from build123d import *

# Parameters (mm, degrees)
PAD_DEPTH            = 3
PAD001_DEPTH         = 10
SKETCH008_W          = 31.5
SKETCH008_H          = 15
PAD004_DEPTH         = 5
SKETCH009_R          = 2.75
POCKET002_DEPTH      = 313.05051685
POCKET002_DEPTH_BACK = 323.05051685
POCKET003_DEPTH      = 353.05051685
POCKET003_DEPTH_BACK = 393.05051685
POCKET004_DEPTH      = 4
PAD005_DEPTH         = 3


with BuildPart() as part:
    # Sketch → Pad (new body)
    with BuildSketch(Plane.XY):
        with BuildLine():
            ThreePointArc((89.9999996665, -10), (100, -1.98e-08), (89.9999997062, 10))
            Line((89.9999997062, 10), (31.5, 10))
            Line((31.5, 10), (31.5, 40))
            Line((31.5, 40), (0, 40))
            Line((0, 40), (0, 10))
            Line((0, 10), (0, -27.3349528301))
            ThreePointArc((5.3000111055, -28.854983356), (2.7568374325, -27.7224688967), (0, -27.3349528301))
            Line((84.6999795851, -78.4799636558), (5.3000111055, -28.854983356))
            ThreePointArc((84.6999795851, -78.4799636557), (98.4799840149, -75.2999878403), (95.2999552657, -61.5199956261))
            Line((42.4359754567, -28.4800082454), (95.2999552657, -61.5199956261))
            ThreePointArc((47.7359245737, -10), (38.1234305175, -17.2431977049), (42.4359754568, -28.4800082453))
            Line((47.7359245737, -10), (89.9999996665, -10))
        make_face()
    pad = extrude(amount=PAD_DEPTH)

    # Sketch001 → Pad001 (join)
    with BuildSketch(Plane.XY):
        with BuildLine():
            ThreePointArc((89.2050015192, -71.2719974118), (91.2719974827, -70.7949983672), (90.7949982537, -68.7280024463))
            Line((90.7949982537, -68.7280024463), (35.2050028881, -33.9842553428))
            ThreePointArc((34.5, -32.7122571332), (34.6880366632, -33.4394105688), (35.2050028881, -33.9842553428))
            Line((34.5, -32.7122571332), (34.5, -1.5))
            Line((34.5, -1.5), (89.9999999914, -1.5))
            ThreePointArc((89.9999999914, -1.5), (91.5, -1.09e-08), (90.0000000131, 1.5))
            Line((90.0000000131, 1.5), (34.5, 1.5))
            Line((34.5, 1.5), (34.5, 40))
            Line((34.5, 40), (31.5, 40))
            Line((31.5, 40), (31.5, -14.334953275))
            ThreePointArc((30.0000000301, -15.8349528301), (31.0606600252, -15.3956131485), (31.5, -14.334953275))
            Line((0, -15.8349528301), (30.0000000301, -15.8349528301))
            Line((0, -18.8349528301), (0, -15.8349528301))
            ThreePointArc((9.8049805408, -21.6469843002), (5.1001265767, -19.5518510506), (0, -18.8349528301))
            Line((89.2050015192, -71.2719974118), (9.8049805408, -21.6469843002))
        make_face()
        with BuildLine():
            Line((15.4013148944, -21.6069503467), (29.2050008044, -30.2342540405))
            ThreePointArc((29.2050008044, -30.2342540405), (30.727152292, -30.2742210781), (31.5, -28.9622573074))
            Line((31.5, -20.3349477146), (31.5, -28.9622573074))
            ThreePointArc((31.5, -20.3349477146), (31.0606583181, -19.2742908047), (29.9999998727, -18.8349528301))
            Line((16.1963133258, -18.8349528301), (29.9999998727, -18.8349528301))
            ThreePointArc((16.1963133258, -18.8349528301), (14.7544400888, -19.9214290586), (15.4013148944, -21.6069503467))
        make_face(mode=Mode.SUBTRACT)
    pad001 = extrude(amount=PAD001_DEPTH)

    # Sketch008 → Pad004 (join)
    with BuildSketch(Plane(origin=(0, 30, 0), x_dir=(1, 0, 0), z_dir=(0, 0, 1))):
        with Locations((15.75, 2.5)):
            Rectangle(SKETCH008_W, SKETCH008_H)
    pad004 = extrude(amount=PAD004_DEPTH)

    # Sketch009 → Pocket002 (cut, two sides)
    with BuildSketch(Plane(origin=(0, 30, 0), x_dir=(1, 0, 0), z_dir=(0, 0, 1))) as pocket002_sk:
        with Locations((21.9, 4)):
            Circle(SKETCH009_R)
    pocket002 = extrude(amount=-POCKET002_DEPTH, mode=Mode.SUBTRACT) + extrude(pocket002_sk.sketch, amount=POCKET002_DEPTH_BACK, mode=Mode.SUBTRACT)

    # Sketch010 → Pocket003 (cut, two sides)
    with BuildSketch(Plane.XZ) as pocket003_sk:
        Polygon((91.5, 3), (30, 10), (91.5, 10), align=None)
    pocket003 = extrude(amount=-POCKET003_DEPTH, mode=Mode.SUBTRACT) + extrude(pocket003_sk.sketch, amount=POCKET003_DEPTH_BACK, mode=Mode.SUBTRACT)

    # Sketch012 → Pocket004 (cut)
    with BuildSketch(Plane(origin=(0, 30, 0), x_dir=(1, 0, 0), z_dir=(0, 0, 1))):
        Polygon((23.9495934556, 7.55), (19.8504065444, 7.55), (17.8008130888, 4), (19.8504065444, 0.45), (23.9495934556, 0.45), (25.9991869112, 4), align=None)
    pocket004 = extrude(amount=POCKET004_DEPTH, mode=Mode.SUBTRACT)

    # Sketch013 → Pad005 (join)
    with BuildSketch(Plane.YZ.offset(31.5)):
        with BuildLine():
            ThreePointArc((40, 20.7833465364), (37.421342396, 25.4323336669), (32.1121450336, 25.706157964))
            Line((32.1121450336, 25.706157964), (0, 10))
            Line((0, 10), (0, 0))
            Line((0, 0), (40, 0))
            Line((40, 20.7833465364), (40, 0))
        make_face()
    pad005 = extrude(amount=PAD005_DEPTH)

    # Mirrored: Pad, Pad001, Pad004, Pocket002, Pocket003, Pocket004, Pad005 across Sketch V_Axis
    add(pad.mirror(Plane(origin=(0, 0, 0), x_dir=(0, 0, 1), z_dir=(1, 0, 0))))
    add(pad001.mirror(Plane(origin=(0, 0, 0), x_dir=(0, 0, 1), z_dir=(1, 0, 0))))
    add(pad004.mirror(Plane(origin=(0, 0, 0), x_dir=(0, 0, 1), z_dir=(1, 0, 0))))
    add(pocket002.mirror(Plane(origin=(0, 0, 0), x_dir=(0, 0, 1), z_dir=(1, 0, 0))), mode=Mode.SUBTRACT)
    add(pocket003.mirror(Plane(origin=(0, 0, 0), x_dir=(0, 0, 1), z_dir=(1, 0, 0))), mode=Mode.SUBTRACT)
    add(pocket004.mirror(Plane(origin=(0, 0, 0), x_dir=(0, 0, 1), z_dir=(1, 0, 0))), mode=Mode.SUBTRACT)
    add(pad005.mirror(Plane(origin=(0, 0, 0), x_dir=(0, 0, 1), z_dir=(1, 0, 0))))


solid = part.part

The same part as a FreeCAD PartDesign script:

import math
import FreeCAD as App
import Part
import Sketcher
Q = App.Units.Quantity


def add_polygon(sketch, points):
    """Adds a closed chain of lines whose ends are joined by coincident constraints."""
    first, n = sketch.GeometryCount, len(points)
    for a, b in zip(points, points[1:] + points[:1]):
        sketch.addGeometry(Part.LineSegment(App.Vector(*a, 0), App.Vector(*b, 0)), False)
    for i in range(n):
        sketch.addConstraint(Sketcher.Constraint("Coincident", first + i, 2, first + (i + 1) % n, 1))

doc = App.newDocument("Part")
body = doc.addObject("PartDesign::Body", "Body")

# Sketch on XY plane
sketch1 = body.newObject("Sketcher::SketchObject", "Sketch")
sketch1.AttachmentSupport = (doc.getObject("XY_Plane"), [""])
sketch1.MapMode = "FlatFace"
sketch1.addGeometry(Part.ArcOfCircle(Part.Circle(App.Vector(90, 0, 0), App.Vector(0, 0, 1), 10), math.radians(-90.000002), math.radians(90.000002)), False)
sketch1.addGeometry(Part.LineSegment(App.Vector(90, 10, 0), App.Vector(31.5, 10, 0)), False)
sketch1.addGeometry(Part.LineSegment(App.Vector(31.5, 10, 0), App.Vector(31.5, 40, 0)), False)
sketch1.addGeometry(Part.LineSegment(App.Vector(31.5, 40, 0), App.Vector(0, 40, 0)), False)
sketch1.addGeometry(Part.LineSegment(App.Vector(0, 40, 0), App.Vector(0, -27.334953, 0)), False)
sketch1.addGeometry(Part.ArcOfCircle(Part.Circle(App.Vector(0, -37.334953, 0), App.Vector(0, 0, 1), 10), math.radians(57.99447), math.radians(90)), False)
sketch1.addGeometry(Part.LineSegment(App.Vector(5.300011, -28.854983, 0), App.Vector(84.69998, -78.479964, 0)), False)
sketch1.addGeometry(Part.ArcOfCircle(Part.Circle(App.Vector(90, -70, 0), App.Vector(0, 0, 1), 10), math.radians(-122.005593), math.radians(57.994847)), False)
sketch1.addGeometry(Part.LineSegment(App.Vector(95.299955, -61.519996, 0), App.Vector(42.435975, -28.480008, 0)), False)
sketch1.addGeometry(Part.ArcOfCircle(Part.Circle(App.Vector(47.735925, -20, 0), App.Vector(0, 0, 1), 10), math.radians(90), math.radians(237.994889)), False)
sketch1.addGeometry(Part.LineSegment(App.Vector(47.735925, -10, 0), App.Vector(90, -10, 0)), False)
sketch1.addConstraint(Sketcher.Constraint("Tangent", 0, 2, 1, 1))
sketch1.addConstraint(Sketcher.Constraint("Coincident", 1, 2, 2, 1))
sketch1.addConstraint(Sketcher.Constraint("Coincident", 2, 2, 3, 1))
sketch1.addConstraint(Sketcher.Constraint("Coincident", 3, 2, 4, 1))
sketch1.addConstraint(Sketcher.Constraint("Coincident", 4, 2, 5, 2))
sketch1.addConstraint(Sketcher.Constraint("Coincident", 5, 1, 6, 1))
sketch1.addConstraint(Sketcher.Constraint("Coincident", 6, 2, 7, 1))
sketch1.addConstraint(Sketcher.Constraint("Coincident", 7, 2, 8, 1))
sketch1.addConstraint(Sketcher.Constraint("Coincident", 8, 2, 9, 2))
sketch1.addConstraint(Sketcher.Constraint("Tangent", 9, 1, 10, 1))
sketch1.addConstraint(Sketcher.Constraint("Tangent", 10, 2, 0, 1))
sketch1.addConstraint(Sketcher.Constraint("Horizontal", 1))
sketch1.addConstraint(Sketcher.Constraint("Vertical", 2))
sketch1.addConstraint(Sketcher.Constraint("Horizontal", 3))
sketch1.addConstraint(Sketcher.Constraint("Vertical", 4))
sketch1.addConstraint(Sketcher.Constraint("Horizontal", 10))
sketch1.addConstraint(Sketcher.Constraint("Equal", 0, 5))
sketch1.addConstraint(Sketcher.Constraint("Equal", 5, 7))
sketch1.addConstraint(Sketcher.Constraint("Equal", 7, 9))
sketch1.addConstraint(Sketcher.Constraint("PointOnObject", 0, 3, -1))
sketch1.addConstraint(Sketcher.Constraint("PointOnObject", 5, 3, -2))
sketch1.addConstraint(Sketcher.Constraint("PointOnObject", 3, 2, -2))
sketch1.addConstraint(Sketcher.Constraint("Parallel", 6, 8))
sketch1.addConstraint(Sketcher.Constraint("Vertical", 0, 3, 7, 3))
sketch1.addConstraint(Sketcher.Constraint("Radius", 0, Q("10 mm")))
sketch1.addConstraint(Sketcher.Constraint("DistanceY", 2, 1, 2, 2, Q("30 mm")))
sketch1.addConstraint(Sketcher.Constraint("DistanceX", 1, 2, 1, 1, Q("58.5 mm")))
sketch1.addConstraint(Sketcher.Constraint("DistanceX", 3, 2, 3, 1, Q("31.5 mm")))
sketch1.addConstraint(Sketcher.Constraint("DistanceY", 7, 3, -1, 1, Q("70 mm")))
sketch1.addConstraint(Sketcher.Constraint("DistanceX", 10, 1, 10, 2, Q("42.264075 mm")))
sketch1.addConstraint(Sketcher.Constraint("DistanceX", -1, 1, 5, 1, Q("5.300011 mm")))
sketch1.addConstraint(Sketcher.Constraint("DistanceX", -1, 1, 6, 2, Q("84.69998 mm")))
sketch1.addConstraint(Sketcher.Constraint("DistanceY", 8, 2, -1, 1, Q("28.480008 mm")))
sketch1.addConstraint(Sketcher.Constraint("DistanceY", 6, 2, 7, 2, Q("16.959968 mm")))
pad1 = body.newObject("PartDesign::Pad", "Pad")
pad1.Profile = sketch1
pad1.Length = 3

# Sketch on XY plane
sketch2 = body.newObject("Sketcher::SketchObject", "Sketch001")
sketch2.AttachmentSupport = (doc.getObject("XY_Plane"), [""])
sketch2.MapMode = "FlatFace"
sketch2.addGeometry(Part.ArcOfCircle(Part.Circle(App.Vector(90, -70, 0), App.Vector(0, 0, 1), 1.5), math.radians(-122.005386), math.radians(57.994624)), False)
sketch2.addGeometry(Part.LineSegment(App.Vector(90.794998, -68.728002, 0), App.Vector(35.205003, -33.984255, 0)), False)
sketch2.addGeometry(Part.ArcOfCircle(Part.Circle(App.Vector(36, -32.712257, 0), App.Vector(0, 0, 1), 1.5), math.radians(-179.999998), math.radians(-122.005325)), False)
sketch2.addGeometry(Part.LineSegment(App.Vector(34.5, -32.712257, 0), App.Vector(34.5, -1.5, 0)), False)
sketch2.addGeometry(Part.LineSegment(App.Vector(34.5, -1.5, 0), App.Vector(90, -1.5, 0)), False)
sketch2.addGeometry(Part.ArcOfCircle(Part.Circle(App.Vector(90, 0, 0), App.Vector(0, 0, 1), 1.5), math.radians(-90), math.radians(90)), False)
sketch2.addGeometry(Part.LineSegment(App.Vector(90, 1.5, 0), App.Vector(34.5, 1.5, 0)), False)
sketch2.addGeometry(Part.LineSegment(App.Vector(34.5, 1.5, 0), App.Vector(34.5, 40, 0)), False)
sketch2.addGeometry(Part.LineSegment(App.Vector(34.5, 40, 0), App.Vector(31.5, 40, 0)), False)
sketch2.addGeometry(Part.LineSegment(App.Vector(31.5, 40, 0), App.Vector(31.5, -14.334953, 0)), False)
sketch2.addGeometry(Part.ArcOfCircle(Part.Circle(App.Vector(30, -14.334953, 0), App.Vector(0, 0, 1), 1.5), math.radians(-89.999999), math.radians(-0.000017)), False)
sketch2.addGeometry(Part.LineSegment(App.Vector(30, -15.834953, 0), App.Vector(0, -15.834953, 0)), False)
sketch2.addGeometry(Part.LineSegment(App.Vector(0, -15.834953, 0), App.Vector(0, -18.834953, 0)), False)
sketch2.addGeometry(Part.ArcOfCircle(Part.Circle(App.Vector(0, -37.334953, 0), App.Vector(0, 0, 1), 18.5), math.radians(57.994616), math.radians(90)), False)
sketch2.addGeometry(Part.LineSegment(App.Vector(9.804981, -21.646984, 0), App.Vector(89.205002, -71.271997, 0)), False)
sketch2.addGeometry(Part.LineSegment(App.Vector(29.205001, -30.234254, 0), App.Vector(15.401315, -21.60695, 0)), False)
sketch2.addGeometry(Part.ArcOfCircle(Part.Circle(App.Vector(16.196313, -20.334953, 0), App.Vector(0, 0, 1), 1.5), math.radians(89.999995), math.radians(237.994621)), False)
sketch2.addGeometry(Part.LineSegment(App.Vector(16.196313, -18.834953, 0), App.Vector(30, -18.834953, 0)), False)
sketch2.addGeometry(Part.ArcOfCircle(Part.Circle(App.Vector(30, -20.334953, 0), App.Vector(0, 0, 1), 1.5), math.radians(0.000195), math.radians(90.000005)), False)
sketch2.addGeometry(Part.LineSegment(App.Vector(31.5, -20.334948, 0), App.Vector(31.5, -28.962257, 0)), False)
sketch2.addGeometry(Part.ArcOfCircle(Part.Circle(App.Vector(30, -28.962257, 0), App.Vector(0, 0, 1), 1.5), math.radians(-122.005419), math.radians(-0.000009)), False)
sketch2.addConstraint(Sketcher.Constraint("Coincident", 0, 2, 1, 1))
sketch2.addConstraint(Sketcher.Constraint("Coincident", 1, 2, 2, 2))
sketch2.addConstraint(Sketcher.Constraint("Coincident", 2, 1, 3, 1))
sketch2.addConstraint(Sketcher.Constraint("Coincident", 3, 2, 4, 1))
sketch2.addConstraint(Sketcher.Constraint("Coincident", 4, 2, 5, 1))
sketch2.addConstraint(Sketcher.Constraint("Coincident", 5, 2, 6, 1))
sketch2.addConstraint(Sketcher.Constraint("Coincident", 6, 2, 7, 1))
sketch2.addConstraint(Sketcher.Constraint("Coincident", 7, 2, 8, 1))
sketch2.addConstraint(Sketcher.Constraint("Coincident", 8, 2, 9, 1))
sketch2.addConstraint(Sketcher.Constraint("Coincident", 9, 2, 10, 2))
sketch2.addConstraint(Sketcher.Constraint("Coincident", 10, 1, 11, 1))
sketch2.addConstraint(Sketcher.Constraint("Coincident", 11, 2, 12, 1))
sketch2.addConstraint(Sketcher.Constraint("Coincident", 12, 2, 13, 2))
sketch2.addConstraint(Sketcher.Constraint("Coincident", 13, 1, 14, 1))
sketch2.addConstraint(Sketcher.Constraint("Coincident", 14, 2, 0, 1))
sketch2.addConstraint(Sketcher.Constraint("Coincident", 15, 2, 16, 2))
sketch2.addConstraint(Sketcher.Constraint("Coincident", 16, 1, 17, 1))
sketch2.addConstraint(Sketcher.Constraint("Coincident", 17, 2, 18, 2))
sketch2.addConstraint(Sketcher.Constraint("Coincident", 18, 1, 19, 1))
sketch2.addConstraint(Sketcher.Constraint("Coincident", 19, 2, 20, 2))
sketch2.addConstraint(Sketcher.Constraint("Coincident", 20, 1, 15, 1))
sketch2.addConstraint(Sketcher.Constraint("Vertical", 3))
sketch2.addConstraint(Sketcher.Constraint("Horizontal", 4))
sketch2.addConstraint(Sketcher.Constraint("Horizontal", 6))
sketch2.addConstraint(Sketcher.Constraint("Vertical", 7))
sketch2.addConstraint(Sketcher.Constraint("Horizontal", 8))
sketch2.addConstraint(Sketcher.Constraint("Vertical", 9))
sketch2.addConstraint(Sketcher.Constraint("Horizontal", 11))
sketch2.addConstraint(Sketcher.Constraint("Vertical", 12))
sketch2.addConstraint(Sketcher.Constraint("Horizontal", 17))
sketch2.addConstraint(Sketcher.Constraint("Vertical", 19))
sketch2.addConstraint(Sketcher.Constraint("PointOnObject", 5, 3, -1))
sketch2.addConstraint(Sketcher.Constraint("PointOnObject", 13, 3, -2))
sketch2.addConstraint(Sketcher.Constraint("PointOnObject", 11, 2, -2))
sketch2.addConstraint(Sketcher.Constraint("Radius", 0, Q("1.5 mm")))
sketch2.addConstraint(Sketcher.Constraint("Radius", 2, Q("1.5 mm")))
sketch2.addConstraint(Sketcher.Constraint("Radius", 5, Q("1.5 mm")))
sketch2.addConstraint(Sketcher.Constraint("Radius", 10, Q("1.5 mm")))
sketch2.addConstraint(Sketcher.Constraint("Radius", 13, Q("18.5 mm")))
sketch2.addConstraint(Sketcher.Constraint("Radius", 16, Q("1.5 mm")))
sketch2.addConstraint(Sketcher.Constraint("Radius", 18, Q("1.5 mm")))
sketch2.addConstraint(Sketcher.Constraint("Radius", 20, Q("1.5 mm")))
sketch2.addConstraint(Sketcher.Constraint("DistanceX", 8, 2, 8, 1, Q("3 mm")))
sketch2.addConstraint(Sketcher.Constraint("DistanceX", 11, 2, 11, 1, Q("30 mm")))
sketch2.addConstraint(Sketcher.Constraint("DistanceY", 12, 2, 12, 1, Q("3 mm")))
sketch2.addConstraint(Sketcher.Constraint("DistanceX", 4, 1, 4, 2, Q("55.5 mm")))
sketch2.addConstraint(Sketcher.Constraint("DistanceX", 6, 2, 6, 1, Q("55.5 mm")))
sketch2.addConstraint(Sketcher.Constraint("DistanceY", 7, 1, 7, 2, Q("38.5 mm")))
sketch2.addConstraint(Sketcher.Constraint("DistanceX", -1, 1, 0, 3, Q("90 mm")))
sketch2.addConstraint(Sketcher.Constraint("DistanceY", 0, 3, -1, 1, Q("70 mm")))
sketch2.addConstraint(Sketcher.Constraint("DistanceX", -1, 1, 2, 3, Q("36 mm")))
sketch2.addConstraint(Sketcher.Constraint("DistanceX", -1, 1, 5, 3, Q("90 mm")))
sketch2.addConstraint(Sketcher.Constraint("DistanceX", -1, 1, 10, 3, Q("30 mm")))
sketch2.addConstraint(Sketcher.Constraint("DistanceX", -1, 1, 18, 3, Q("30 mm")))
sketch2.addConstraint(Sketcher.Constraint("DistanceX", -1, 1, 17, 2, Q("30 mm")))
sketch2.addConstraint(Sketcher.Constraint("DistanceY", 16, 3, 10, 3, Q("6 mm")))
sketch2.addConstraint(Sketcher.Constraint("DistanceY", 18, 3, 9, 2, Q("6 mm")))
sketch2.addConstraint(Sketcher.Constraint("DistanceX", 1, 2, 14, 2, Q("53.999999 mm")))
sketch2.addConstraint(Sketcher.Constraint("DistanceY", 2, 3, 20, 3, Q("3.75 mm")))
sketch2.addConstraint(Sketcher.Constraint("DistanceY", 2, 1, 20, 3, Q("3.75 mm")))
sketch2.addConstraint(Sketcher.Constraint("DistanceY", 2, 1, 19, 2, Q("3.75 mm")))
sketch2.addConstraint(Sketcher.Constraint("DistanceY", 1, 2, 20, 1, Q("3.750001 mm")))
sketch2.addConstraint(Sketcher.Constraint("DistanceX", -1, 1, 0, 2, Q("90.794998 mm")))
sketch2.addConstraint(Sketcher.Constraint("DistanceX", -1, 1, 14, 2, Q("89.205002 mm")))
sketch2.addConstraint(Sketcher.Constraint("DistanceX", 15, 2, 16, 3, Q("0.794998 mm")))
sketch2.addConstraint(Sketcher.Constraint("DistanceX", 15, 2, 16, 1, Q("0.794998 mm")))
sketch2.addConstraint(Sketcher.Constraint("DistanceY", 19, 2, 19, 1, Q("8.62731 mm")))
sketch2.addConstraint(Sketcher.Constraint("Distance", 1, Q("65.554371 mm")))
sketch2.addConstraint(Sketcher.Constraint("DistanceX", 17, 1, 17, 2, Q("13.803687 mm")))
sketch2.addConstraint(Sketcher.Constraint("DistanceY", 9, 2, 9, 1, Q("54.334953 mm")))
sketch2.addConstraint(Sketcher.Constraint("DistanceX", -1, 1, 13, 1, Q("9.804981 mm")))
pad2 = body.newObject("PartDesign::Pad", "Pad001")
pad2.Profile = sketch2
pad2.Length = 10

# Sketch on XY plane
sketch3 = body.newObject("Sketcher::SketchObject", "Sketch002")
sketch3.AttachmentSupport = (doc.getObject("XY_Plane"), [""])
sketch3.MapMode = "FlatFace"
add_polygon(sketch3, [(0, 40), (0, 25), (31.5, 25), (31.5, 40)])  # lines 0-3
sketch3.addConstraint(Sketcher.Constraint("Vertical", 0))
sketch3.addConstraint(Sketcher.Constraint("Horizontal", 1))
sketch3.addConstraint(Sketcher.Constraint("Vertical", 2))
sketch3.addConstraint(Sketcher.Constraint("Horizontal", 3))
sketch3.addConstraint(Sketcher.Constraint("PointOnObject", 0, 2, -2))
sketch3.addConstraint(Sketcher.Constraint("DistanceY", 0, 2, 0, 1, Q("15 mm")))
sketch3.addConstraint(Sketcher.Constraint("DistanceX", 1, 1, 1, 2, Q("31.5 mm")))
sketch3.addConstraint(Sketcher.Constraint("DistanceY", -1, 1, 0, 2, Q("25 mm")))
pad3 = body.newObject("PartDesign::Pad", "Pad002")
pad3.Profile = sketch3
pad3.Length = 5

# Sketch on XY plane
sketch4 = body.newObject("Sketcher::SketchObject", "Sketch003")
sketch4.AttachmentSupport = (doc.getObject("XY_Plane"), [""])
sketch4.MapMode = "FlatFace"
sketch4.addGeometry(Part.Circle(App.Vector(21.9, 34, 0), App.Vector(0, 0, 1), 2.75), False)
sketch4.addConstraint(Sketcher.Constraint("Diameter", 0, Q("5.5 mm")))
sketch4.addConstraint(Sketcher.Constraint("DistanceY", -1, 1, 0, 3, Q("34 mm")))
sketch4.addConstraint(Sketcher.Constraint("DistanceX", -1, 1, 0, 3, Q("21.9 mm")))
pocket1 = body.newObject("PartDesign::Pocket", "Pocket")
pocket1.Profile = sketch4
pocket1.Type = "ThroughAll"
pocket1.Midplane = True

# Sketch on XZ plane
sketch5 = body.newObject("Sketcher::SketchObject", "Sketch004")
sketch5.AttachmentSupport = (doc.getObject("XZ_Plane"), [""])
sketch5.MapMode = "FlatFace"
add_polygon(sketch5, [(30, 10), (91.5, 3), (91.5, 10)])  # lines 0-2
sketch5.addConstraint(Sketcher.Constraint("Vertical", 1))
sketch5.addConstraint(Sketcher.Constraint("Horizontal", 2))
sketch5.addConstraint(Sketcher.Constraint("DistanceY", 1, 1, 1, 2, Q("7 mm")))
sketch5.addConstraint(Sketcher.Constraint("DistanceX", 2, 2, 2, 1, Q("61.5 mm")))
sketch5.addConstraint(Sketcher.Constraint("DistanceY", -1, 1, 0, 2, Q("3 mm")))
sketch5.addConstraint(Sketcher.Constraint("DistanceX", -1, 1, 2, 2, Q("30 mm")))
pocket2 = body.newObject("PartDesign::Pocket", "Pocket001")
pocket2.Profile = sketch5
pocket2.Type = "ThroughAll"
pocket2.Midplane = True

# Sketch on XY plane
sketch6 = body.newObject("Sketcher::SketchObject", "Sketch005")
sketch6.AttachmentSupport = (doc.getObject("XY_Plane"), [""])
sketch6.MapMode = "FlatFace"
add_polygon(sketch6, [(23.949593, 37.55), (19.850407, 37.55), (17.800813, 34), (19.850407, 30.45), (23.949593, 30.45), (25.999187, 34)])  # lines 0-5
sketch6.addConstraint(Sketcher.Constraint("Horizontal", 0))
sketch6.addConstraint(Sketcher.Constraint("Horizontal", 3))
sketch6.addConstraint(Sketcher.Constraint("Parallel", 1, 4))
sketch6.addConstraint(Sketcher.Constraint("Parallel", 2, 5))
sketch6.addConstraint(Sketcher.Constraint("Horizontal", 1, 2, 4, 2))
sketch6.addConstraint(Sketcher.Constraint("Vertical", 0, 2, 2, 2))
sketch6.addConstraint(Sketcher.Constraint("Vertical", 3, 2, 5, 2))
sketch6.addConstraint(Sketcher.Constraint("Angle", 1, Q("-120 deg")))
sketch6.addConstraint(Sketcher.Constraint("DistanceY", -1, 1, 1, 2, Q("34 mm")))
sketch6.addConstraint(Sketcher.Constraint("DistanceY", 2, 2, 0, 2, Q("7.1 mm")))
sketch6.addConstraint(Sketcher.Constraint("DistanceX", 0, 2, 0, 1, Q("4.099187 mm")))
sketch6.addConstraint(Sketcher.Constraint("DistanceX", -1, 1, 0, 2, Q("19.850407 mm")))
pocket3 = body.newObject("PartDesign::Pocket", "Pocket002")
pocket3.Profile = sketch6
pocket3.Length = 4
pocket3.Reversed = True

# Sketch on YZ plane
sketch7 = body.newObject("Sketcher::SketchObject", "Sketch006")
sketch7.AttachmentSupport = (doc.getObject("YZ_Plane"), [""])
sketch7.MapMode = "FlatFace"
sketch7.AttachmentOffset = App.Placement(App.Vector(0, 0, 31.5), App.Rotation())
sketch7.addGeometry(Part.ArcOfCircle(Part.Circle(App.Vector(34.519909, 20.783346, 0), App.Vector(0, 0, 1), 5.480091), math.radians(0.000002), math.radians(116.063412)), False)
sketch7.addGeometry(Part.LineSegment(App.Vector(32.112145, 25.706158, 0), App.Vector(0, 10, 0)), False)
sketch7.addGeometry(Part.LineSegment(App.Vector(0, 10, 0), App.Vector(0, 0, 0)), False)
sketch7.addGeometry(Part.LineSegment(App.Vector(0, 0, 0), App.Vector(40, 0, 0)), False)
sketch7.addGeometry(Part.LineSegment(App.Vector(40, 0, 0), App.Vector(40, 20.783347, 0)), False)
sketch7.addConstraint(Sketcher.Constraint("Tangent", 0, 2, 1, 1))
sketch7.addConstraint(Sketcher.Constraint("Coincident", 1, 2, 2, 1))
sketch7.addConstraint(Sketcher.Constraint("Coincident", 2, 2, 3, 1))
sketch7.addConstraint(Sketcher.Constraint("Coincident", 3, 2, 4, 1))
sketch7.addConstraint(Sketcher.Constraint("Tangent", 4, 2, 0, 1))
sketch7.addConstraint(Sketcher.Constraint("Vertical", 2))
sketch7.addConstraint(Sketcher.Constraint("Horizontal", 3))
sketch7.addConstraint(Sketcher.Constraint("Vertical", 4))
sketch7.addConstraint(Sketcher.Constraint("Coincident", 2, 2, -1, 1))
sketch7.addConstraint(Sketcher.Constraint("DistanceX", 3, 1, 3, 2, Q("40 mm")))
sketch7.addConstraint(Sketcher.Constraint("DistanceY", 2, 2, 2, 1, Q("10 mm")))
sketch7.addConstraint(Sketcher.Constraint("Radius", 0, Q("5.480091 mm")))
sketch7.addConstraint(Sketcher.Constraint("DistanceY", 4, 1, 4, 2, Q("20.783347 mm")))
pad4 = body.newObject("PartDesign::Pad", "Pad003")
pad4.Profile = sketch7
pad4.Length = 3
doc.recompute()

mirrored = body.newObject("PartDesign::Mirrored", "Mirrored")
mirrored.Originals = [pad1, pad2, pad3, pocket1, pocket2, pocket3, pad4]
mirrored.MirrorPlane = (doc.getObject("YZ_Plane"), [""])
body.Tip = mirrored

doc.recompute()
